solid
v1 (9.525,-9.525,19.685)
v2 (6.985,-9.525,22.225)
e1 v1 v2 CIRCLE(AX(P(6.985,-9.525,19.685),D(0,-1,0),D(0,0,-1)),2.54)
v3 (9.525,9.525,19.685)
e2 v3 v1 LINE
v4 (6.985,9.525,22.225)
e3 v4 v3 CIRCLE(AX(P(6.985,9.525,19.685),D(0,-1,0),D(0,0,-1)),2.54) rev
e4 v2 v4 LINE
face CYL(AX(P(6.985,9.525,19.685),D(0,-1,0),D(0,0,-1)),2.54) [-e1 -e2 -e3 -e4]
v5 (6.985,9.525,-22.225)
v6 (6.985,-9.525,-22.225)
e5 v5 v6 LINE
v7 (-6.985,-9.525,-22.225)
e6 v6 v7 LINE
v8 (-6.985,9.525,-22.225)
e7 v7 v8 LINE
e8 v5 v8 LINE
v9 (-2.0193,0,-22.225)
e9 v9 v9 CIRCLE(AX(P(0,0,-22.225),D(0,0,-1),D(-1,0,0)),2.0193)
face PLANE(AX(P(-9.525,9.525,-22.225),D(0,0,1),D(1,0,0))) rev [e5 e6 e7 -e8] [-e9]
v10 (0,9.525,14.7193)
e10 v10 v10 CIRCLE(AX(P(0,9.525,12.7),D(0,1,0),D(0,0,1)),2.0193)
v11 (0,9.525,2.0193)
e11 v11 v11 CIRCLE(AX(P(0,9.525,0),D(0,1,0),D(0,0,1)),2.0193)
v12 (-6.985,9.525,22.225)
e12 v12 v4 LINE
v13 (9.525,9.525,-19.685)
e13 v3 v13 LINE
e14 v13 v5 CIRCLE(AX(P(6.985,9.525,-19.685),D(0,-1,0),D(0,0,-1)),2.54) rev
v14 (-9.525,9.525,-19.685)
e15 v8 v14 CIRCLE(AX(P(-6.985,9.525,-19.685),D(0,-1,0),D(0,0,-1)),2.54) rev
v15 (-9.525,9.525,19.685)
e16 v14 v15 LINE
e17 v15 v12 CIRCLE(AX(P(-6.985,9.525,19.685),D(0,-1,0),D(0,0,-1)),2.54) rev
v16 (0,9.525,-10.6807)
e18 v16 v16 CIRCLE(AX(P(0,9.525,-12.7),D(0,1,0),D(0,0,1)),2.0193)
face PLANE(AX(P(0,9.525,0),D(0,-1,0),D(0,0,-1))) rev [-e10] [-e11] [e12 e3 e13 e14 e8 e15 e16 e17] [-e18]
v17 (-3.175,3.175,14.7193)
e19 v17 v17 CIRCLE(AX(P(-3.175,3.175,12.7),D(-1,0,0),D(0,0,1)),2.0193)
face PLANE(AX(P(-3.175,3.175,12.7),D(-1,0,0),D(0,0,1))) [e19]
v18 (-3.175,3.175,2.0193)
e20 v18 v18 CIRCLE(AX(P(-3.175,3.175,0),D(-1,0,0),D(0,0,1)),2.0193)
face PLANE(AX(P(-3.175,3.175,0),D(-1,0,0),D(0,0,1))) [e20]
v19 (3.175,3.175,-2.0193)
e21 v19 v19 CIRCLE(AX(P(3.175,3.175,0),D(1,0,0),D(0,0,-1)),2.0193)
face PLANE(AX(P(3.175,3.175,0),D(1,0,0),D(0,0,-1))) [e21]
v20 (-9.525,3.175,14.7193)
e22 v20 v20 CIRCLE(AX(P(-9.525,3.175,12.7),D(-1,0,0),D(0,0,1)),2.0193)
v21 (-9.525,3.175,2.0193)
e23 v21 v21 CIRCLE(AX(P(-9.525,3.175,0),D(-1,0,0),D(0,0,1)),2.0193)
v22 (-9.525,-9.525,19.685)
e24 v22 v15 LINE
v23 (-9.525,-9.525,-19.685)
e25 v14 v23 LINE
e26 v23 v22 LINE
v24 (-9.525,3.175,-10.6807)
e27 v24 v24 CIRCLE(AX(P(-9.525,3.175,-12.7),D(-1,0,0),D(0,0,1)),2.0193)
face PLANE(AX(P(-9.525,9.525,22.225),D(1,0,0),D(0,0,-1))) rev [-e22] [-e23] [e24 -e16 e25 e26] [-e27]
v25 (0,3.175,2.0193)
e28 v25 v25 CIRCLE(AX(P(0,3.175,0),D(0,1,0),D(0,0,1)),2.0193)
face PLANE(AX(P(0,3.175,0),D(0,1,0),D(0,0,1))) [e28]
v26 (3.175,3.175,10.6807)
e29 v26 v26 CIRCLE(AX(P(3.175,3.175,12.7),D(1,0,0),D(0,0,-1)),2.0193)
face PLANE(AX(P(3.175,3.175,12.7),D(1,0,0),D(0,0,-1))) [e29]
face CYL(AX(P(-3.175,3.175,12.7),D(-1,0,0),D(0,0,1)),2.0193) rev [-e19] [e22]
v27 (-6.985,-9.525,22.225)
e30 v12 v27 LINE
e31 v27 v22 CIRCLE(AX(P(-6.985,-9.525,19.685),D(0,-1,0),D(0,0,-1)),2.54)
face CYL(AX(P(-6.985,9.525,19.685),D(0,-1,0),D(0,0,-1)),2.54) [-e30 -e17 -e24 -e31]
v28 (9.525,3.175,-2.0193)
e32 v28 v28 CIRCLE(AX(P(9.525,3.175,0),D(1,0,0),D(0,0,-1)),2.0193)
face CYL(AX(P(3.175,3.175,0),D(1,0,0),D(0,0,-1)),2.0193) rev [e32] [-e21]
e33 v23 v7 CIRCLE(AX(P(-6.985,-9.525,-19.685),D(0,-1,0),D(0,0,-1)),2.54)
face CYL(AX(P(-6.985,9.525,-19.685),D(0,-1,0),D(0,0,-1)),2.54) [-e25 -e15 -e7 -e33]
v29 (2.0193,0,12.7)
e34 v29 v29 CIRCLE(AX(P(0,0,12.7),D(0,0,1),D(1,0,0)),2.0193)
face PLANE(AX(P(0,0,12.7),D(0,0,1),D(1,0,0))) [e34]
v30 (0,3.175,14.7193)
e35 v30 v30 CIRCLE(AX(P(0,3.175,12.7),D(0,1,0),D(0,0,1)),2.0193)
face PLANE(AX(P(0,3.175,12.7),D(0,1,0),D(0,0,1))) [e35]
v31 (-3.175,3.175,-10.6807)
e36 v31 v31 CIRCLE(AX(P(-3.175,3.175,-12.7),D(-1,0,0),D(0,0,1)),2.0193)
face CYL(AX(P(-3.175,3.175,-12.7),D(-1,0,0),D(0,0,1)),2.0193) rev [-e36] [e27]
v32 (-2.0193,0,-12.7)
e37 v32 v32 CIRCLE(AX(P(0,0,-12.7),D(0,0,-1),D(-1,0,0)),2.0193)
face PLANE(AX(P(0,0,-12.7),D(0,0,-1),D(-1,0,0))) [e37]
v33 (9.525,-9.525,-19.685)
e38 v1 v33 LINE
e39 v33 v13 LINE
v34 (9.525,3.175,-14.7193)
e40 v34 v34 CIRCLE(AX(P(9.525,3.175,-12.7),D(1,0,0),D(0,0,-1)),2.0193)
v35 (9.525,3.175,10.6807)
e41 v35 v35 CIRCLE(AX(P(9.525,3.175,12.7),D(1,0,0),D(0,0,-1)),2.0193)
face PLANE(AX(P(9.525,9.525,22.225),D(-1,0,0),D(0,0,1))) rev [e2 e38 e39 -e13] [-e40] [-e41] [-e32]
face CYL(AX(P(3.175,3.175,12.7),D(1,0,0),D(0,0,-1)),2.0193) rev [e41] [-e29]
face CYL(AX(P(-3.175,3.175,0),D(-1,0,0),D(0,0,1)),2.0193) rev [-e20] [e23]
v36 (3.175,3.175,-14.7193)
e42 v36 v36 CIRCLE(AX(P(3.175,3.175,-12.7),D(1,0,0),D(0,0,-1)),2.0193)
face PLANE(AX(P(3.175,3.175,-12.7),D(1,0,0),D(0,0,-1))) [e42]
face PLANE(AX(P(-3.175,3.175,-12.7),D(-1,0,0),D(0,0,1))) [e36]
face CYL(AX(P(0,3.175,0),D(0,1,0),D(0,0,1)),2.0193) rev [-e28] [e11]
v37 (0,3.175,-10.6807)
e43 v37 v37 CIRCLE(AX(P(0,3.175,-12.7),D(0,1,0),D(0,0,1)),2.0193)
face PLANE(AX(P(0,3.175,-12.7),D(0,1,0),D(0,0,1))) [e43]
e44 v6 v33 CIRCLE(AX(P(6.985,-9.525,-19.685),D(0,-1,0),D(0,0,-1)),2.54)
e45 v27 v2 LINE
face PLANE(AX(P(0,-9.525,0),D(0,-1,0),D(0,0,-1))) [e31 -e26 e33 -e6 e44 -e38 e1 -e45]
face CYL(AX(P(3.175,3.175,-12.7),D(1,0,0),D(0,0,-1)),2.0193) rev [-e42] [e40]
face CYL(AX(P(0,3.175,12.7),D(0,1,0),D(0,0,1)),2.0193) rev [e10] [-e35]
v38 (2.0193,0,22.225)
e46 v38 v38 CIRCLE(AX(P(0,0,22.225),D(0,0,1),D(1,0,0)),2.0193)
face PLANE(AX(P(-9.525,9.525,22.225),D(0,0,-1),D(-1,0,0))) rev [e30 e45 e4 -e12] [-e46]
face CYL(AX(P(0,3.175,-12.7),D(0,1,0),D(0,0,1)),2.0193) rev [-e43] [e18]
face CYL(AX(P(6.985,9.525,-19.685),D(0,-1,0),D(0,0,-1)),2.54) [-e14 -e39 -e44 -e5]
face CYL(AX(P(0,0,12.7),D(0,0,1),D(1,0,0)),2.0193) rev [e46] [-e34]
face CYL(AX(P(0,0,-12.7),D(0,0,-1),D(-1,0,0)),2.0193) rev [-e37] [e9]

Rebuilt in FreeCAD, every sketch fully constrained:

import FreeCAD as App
import Part
import Sketcher
from FreeCAD import Vector
Q = App.Units.Quantity


def edges_at(feature, points):
    """Names of the edges that pass closest to the given points."""
    edges = feature.Shape.Edges
    near = lambda p: min(range(len(edges)), key=lambda i: edges[i].distToShape(Part.Vertex(*p))[0])
    return sorted({f"Edge{near(p) + 1}" for p in points})


def add_polygon(sketch, points):
    """Adds a closed chain of lines whose ends are joined by coincident constraints."""
    first, n = sketch.GeometryCount, len(points)
    for a, b in zip(points, points[1:] + points[:1]):
        sketch.addGeometry(Part.LineSegment(App.Vector(*a, 0), App.Vector(*b, 0)), False)
    for i in range(n):
        sketch.addConstraint(Sketcher.Constraint("Coincident", first + i, 2, first + (i + 1) % n, 1))

doc = App.newDocument("Part")
body = doc.addObject("PartDesign::Body", "Body")

sketch1 = body.newObject("Sketcher::SketchObject", "Sketch")
sketch1.AttachmentSupport = (doc.getObject("XZ_Plane"), [""])
sketch1.MapMode = "FlatFace"
add_polygon(sketch1, [(-10, -22), (-10, 22), (10, 22), (10, -22)])
sketch1.addConstraint(Sketcher.Constraint("Vertical", 0))
sketch1.addConstraint(Sketcher.Constraint("Horizontal", 1))
sketch1.addConstraint(Sketcher.Constraint("Vertical", 2))
sketch1.addConstraint(Sketcher.Constraint("Horizontal", 3))
sketch1.addConstraint(Sketcher.Constraint("Symmetric", 0, 2, 2, 2, -1, 1))
sketch1.addConstraint(Sketcher.Constraint("DistanceX", 1, 1, 1, 2, Q("0.75 in")))
sketch1.addConstraint(Sketcher.Constraint("DistanceY", 0, 1, 0, 2, Q("1.75 in")))
pad1 = body.newObject("PartDesign::Pad", "Pad")
pad1.Profile = sketch1
pad1.Length = Q("0.75 in")
pad1.Midplane = True

sketch2 = body.newObject("Sketcher::SketchObject", "Sketch001")
sketch2.AttachmentSupport = (doc.getObject("XY_Plane"), [""])
sketch2.MapMode = "FlatFace"
sketch2.AttachmentOffset = App.Placement(Vector(0, 0, 0.875 * 25.4), App.Rotation())
sketch2.addGeometry(Part.Circle(Vector(0, 0, 0), Vector(0, 0, 1), 2), False)
sketch2.addConstraint(Sketcher.Constraint("Coincident", 0, 3, -1, 1))
sketch2.addConstraint(Sketcher.Constraint("Diameter", 0, Q("0.159 in")))
pocket1 = body.newObject("PartDesign::Pocket", "Pocket")
pocket1.Profile = sketch2
pocket1.Length = Q("0.375 in")

sketch3 = body.newObject("Sketcher::SketchObject", "Sketch002")
sketch3.AttachmentSupport = (doc.getObject("XY_Plane"), [""])
sketch3.MapMode = "FlatFace"
sketch3.AttachmentOffset = App.Placement(Vector(0, 0, -0.875 * 25.4), App.Rotation())
sketch3.addGeometry(Part.Circle(Vector(0, 0, 0), Vector(0, 0, 1), 2), False)
sketch3.addConstraint(Sketcher.Constraint("Coincident", 0, 3, -1, 1))
sketch3.addConstraint(Sketcher.Constraint("Diameter", 0, Q("0.159 in")))
pocket2 = body.newObject("PartDesign::Pocket", "Pocket001")
pocket2.Profile = sketch3
pocket2.Length = Q("0.375 in")
pocket2.Reversed = True

sketch4 = body.newObject("Sketcher::SketchObject", "Sketch003")
sketch4.AttachmentSupport = (doc.getObject("YZ_Plane"), [""])
sketch4.MapMode = "FlatFace"
sketch4.AttachmentOffset = App.Placement(Vector(0, 0, 0.375 * 25.4), App.Rotation())
sketch4.addGeometry(Part.Circle(Vector(3.2, 12.7, 0), Vector(0, 0, 1), 2), False)
sketch4.addGeometry(Part.Circle(Vector(3.2, -12.7, 0), Vector(0, 0, 1), 2), False)
sketch4.addGeometry(Part.Circle(Vector(3.2, 0, 0), Vector(0, 0, 1), 2), False)
sketch4.addConstraint(Sketcher.Constraint("Equal", 0, 1))
sketch4.addConstraint(Sketcher.Constraint("Equal", 1, 2))
sketch4.addConstraint(Sketcher.Constraint("Symmetric", 0, 3, 1, 3, -1))
sketch4.addConstraint(Sketcher.Constraint("PointOnObject", 2, 3, -1))
sketch4.addConstraint(Sketcher.Constraint("Vertical", 1, 3, 2, 3))
sketch4.addConstraint(Sketcher.Constraint("Diameter", 0, Q("0.159 in")))
sketch4.addConstraint(Sketcher.Constraint("DistanceY", 1, 3, 0, 3, Q("1 in")))
sketch4.addConstraint(Sketcher.Constraint("DistanceX", -1, 1, 0, 3, Q("0.125 in")))
pocket3 = body.newObject("PartDesign::Pocket", "Pocket002")
pocket3.Profile = sketch4
pocket3.Length = Q("0.25 in")

sketch5 = body.newObject("Sketcher::SketchObject", "Sketch004")
sketch5.AttachmentSupport = (doc.getObject("YZ_Plane"), [""])
sketch5.MapMode = "FlatFace"
sketch5.AttachmentOffset = App.Placement(Vector(0, 0, -0.375 * 25.4), App.Rotation())
sketch5.addGeometry(Part.Circle(Vector(3.2, -12.7, 0), Vector(0, 0, 1), 2), False)
sketch5.addGeometry(Part.Circle(Vector(3.2, 0, 0), Vector(0, 0, 1), 2), False)
sketch5.addGeometry(Part.Circle(Vector(3.2, 12.7, 0), Vector(0, 0, 1), 2), False)
sketch5.addConstraint(Sketcher.Constraint("Equal", 0, 1))
sketch5.addConstraint(Sketcher.Constraint("Equal", 1, 2))
sketch5.addConstraint(Sketcher.Constraint("Symmetric", 0, 3, 2, 3, -1))
sketch5.addConstraint(Sketcher.Constraint("PointOnObject", 1, 3, -1))
sketch5.addConstraint(Sketcher.Constraint("Vertical", 0, 3, 1, 3))
sketch5.addConstraint(Sketcher.Constraint("Diameter", 0, Q("0.159 in")))
sketch5.addConstraint(Sketcher.Constraint("DistanceY", 0, 3, 2, 3, Q("1 in")))
sketch5.addConstraint(Sketcher.Constraint("DistanceX", -1, 1, 0, 3, Q("0.125 in")))
pocket4 = body.newObject("PartDesign::Pocket", "Pocket003")
pocket4.Profile = sketch5
pocket4.Length = Q("0.25 in")
pocket4.Reversed = True

sketch6 = body.newObject("Sketcher::SketchObject", "Sketch005")
sketch6.AttachmentSupport = (doc.getObject("XZ_Plane"), [""])
sketch6.MapMode = "FlatFace"
sketch6.AttachmentOffset = App.Placement(Vector(0, 0, -0.375 * 25.4), App.Rotation())
sketch6.addGeometry(Part.Circle(Vector(0, -12.7, 0), Vector(0, 0, 1), 2), False)
sketch6.addGeometry(Part.Circle(Vector(0, 0, 0), Vector(0, 0, 1), 2), False)
sketch6.addGeometry(Part.Circle(Vector(0, 12.7, 0), Vector(0, 0, 1), 2), False)
sketch6.addConstraint(Sketcher.Constraint("Coincident", 1, 3, -1, 1))
sketch6.addConstraint(Sketcher.Constraint("Equal", 0, 1))
sketch6.addConstraint(Sketcher.Constraint("Equal", 1, 2))
sketch6.addConstraint(Sketcher.Constraint("Symmetric", 0, 3, 2, 3, -1, 1))
sketch6.addConstraint(Sketcher.Constraint("PointOnObject", 0, 3, -2))
sketch6.addConstraint(Sketcher.Constraint("Diameter", 0, Q("0.159 in")))
sketch6.addConstraint(Sketcher.Constraint("DistanceY", 0, 3, 2, 3, Q("1 in")))
pocket5 = body.newObject("PartDesign::Pocket", "Pocket004")
pocket5.Profile = sketch6
pocket5.Length = Q("0.25 in")
pocket5.Reversed = True
doc.recompute()

fillet = body.newObject("PartDesign::Fillet", "Fillet")
fillet.Base = (pocket5, edges_at(pocket5, [
    (9.525, 0, 22.225),
    (-9.525, 0, 22.225),
    (-9.525, 0, -22.225),
    (9.525, 0, -22.225),
]))
fillet.Radius = Q("0.1 in")

doc.recompute()
